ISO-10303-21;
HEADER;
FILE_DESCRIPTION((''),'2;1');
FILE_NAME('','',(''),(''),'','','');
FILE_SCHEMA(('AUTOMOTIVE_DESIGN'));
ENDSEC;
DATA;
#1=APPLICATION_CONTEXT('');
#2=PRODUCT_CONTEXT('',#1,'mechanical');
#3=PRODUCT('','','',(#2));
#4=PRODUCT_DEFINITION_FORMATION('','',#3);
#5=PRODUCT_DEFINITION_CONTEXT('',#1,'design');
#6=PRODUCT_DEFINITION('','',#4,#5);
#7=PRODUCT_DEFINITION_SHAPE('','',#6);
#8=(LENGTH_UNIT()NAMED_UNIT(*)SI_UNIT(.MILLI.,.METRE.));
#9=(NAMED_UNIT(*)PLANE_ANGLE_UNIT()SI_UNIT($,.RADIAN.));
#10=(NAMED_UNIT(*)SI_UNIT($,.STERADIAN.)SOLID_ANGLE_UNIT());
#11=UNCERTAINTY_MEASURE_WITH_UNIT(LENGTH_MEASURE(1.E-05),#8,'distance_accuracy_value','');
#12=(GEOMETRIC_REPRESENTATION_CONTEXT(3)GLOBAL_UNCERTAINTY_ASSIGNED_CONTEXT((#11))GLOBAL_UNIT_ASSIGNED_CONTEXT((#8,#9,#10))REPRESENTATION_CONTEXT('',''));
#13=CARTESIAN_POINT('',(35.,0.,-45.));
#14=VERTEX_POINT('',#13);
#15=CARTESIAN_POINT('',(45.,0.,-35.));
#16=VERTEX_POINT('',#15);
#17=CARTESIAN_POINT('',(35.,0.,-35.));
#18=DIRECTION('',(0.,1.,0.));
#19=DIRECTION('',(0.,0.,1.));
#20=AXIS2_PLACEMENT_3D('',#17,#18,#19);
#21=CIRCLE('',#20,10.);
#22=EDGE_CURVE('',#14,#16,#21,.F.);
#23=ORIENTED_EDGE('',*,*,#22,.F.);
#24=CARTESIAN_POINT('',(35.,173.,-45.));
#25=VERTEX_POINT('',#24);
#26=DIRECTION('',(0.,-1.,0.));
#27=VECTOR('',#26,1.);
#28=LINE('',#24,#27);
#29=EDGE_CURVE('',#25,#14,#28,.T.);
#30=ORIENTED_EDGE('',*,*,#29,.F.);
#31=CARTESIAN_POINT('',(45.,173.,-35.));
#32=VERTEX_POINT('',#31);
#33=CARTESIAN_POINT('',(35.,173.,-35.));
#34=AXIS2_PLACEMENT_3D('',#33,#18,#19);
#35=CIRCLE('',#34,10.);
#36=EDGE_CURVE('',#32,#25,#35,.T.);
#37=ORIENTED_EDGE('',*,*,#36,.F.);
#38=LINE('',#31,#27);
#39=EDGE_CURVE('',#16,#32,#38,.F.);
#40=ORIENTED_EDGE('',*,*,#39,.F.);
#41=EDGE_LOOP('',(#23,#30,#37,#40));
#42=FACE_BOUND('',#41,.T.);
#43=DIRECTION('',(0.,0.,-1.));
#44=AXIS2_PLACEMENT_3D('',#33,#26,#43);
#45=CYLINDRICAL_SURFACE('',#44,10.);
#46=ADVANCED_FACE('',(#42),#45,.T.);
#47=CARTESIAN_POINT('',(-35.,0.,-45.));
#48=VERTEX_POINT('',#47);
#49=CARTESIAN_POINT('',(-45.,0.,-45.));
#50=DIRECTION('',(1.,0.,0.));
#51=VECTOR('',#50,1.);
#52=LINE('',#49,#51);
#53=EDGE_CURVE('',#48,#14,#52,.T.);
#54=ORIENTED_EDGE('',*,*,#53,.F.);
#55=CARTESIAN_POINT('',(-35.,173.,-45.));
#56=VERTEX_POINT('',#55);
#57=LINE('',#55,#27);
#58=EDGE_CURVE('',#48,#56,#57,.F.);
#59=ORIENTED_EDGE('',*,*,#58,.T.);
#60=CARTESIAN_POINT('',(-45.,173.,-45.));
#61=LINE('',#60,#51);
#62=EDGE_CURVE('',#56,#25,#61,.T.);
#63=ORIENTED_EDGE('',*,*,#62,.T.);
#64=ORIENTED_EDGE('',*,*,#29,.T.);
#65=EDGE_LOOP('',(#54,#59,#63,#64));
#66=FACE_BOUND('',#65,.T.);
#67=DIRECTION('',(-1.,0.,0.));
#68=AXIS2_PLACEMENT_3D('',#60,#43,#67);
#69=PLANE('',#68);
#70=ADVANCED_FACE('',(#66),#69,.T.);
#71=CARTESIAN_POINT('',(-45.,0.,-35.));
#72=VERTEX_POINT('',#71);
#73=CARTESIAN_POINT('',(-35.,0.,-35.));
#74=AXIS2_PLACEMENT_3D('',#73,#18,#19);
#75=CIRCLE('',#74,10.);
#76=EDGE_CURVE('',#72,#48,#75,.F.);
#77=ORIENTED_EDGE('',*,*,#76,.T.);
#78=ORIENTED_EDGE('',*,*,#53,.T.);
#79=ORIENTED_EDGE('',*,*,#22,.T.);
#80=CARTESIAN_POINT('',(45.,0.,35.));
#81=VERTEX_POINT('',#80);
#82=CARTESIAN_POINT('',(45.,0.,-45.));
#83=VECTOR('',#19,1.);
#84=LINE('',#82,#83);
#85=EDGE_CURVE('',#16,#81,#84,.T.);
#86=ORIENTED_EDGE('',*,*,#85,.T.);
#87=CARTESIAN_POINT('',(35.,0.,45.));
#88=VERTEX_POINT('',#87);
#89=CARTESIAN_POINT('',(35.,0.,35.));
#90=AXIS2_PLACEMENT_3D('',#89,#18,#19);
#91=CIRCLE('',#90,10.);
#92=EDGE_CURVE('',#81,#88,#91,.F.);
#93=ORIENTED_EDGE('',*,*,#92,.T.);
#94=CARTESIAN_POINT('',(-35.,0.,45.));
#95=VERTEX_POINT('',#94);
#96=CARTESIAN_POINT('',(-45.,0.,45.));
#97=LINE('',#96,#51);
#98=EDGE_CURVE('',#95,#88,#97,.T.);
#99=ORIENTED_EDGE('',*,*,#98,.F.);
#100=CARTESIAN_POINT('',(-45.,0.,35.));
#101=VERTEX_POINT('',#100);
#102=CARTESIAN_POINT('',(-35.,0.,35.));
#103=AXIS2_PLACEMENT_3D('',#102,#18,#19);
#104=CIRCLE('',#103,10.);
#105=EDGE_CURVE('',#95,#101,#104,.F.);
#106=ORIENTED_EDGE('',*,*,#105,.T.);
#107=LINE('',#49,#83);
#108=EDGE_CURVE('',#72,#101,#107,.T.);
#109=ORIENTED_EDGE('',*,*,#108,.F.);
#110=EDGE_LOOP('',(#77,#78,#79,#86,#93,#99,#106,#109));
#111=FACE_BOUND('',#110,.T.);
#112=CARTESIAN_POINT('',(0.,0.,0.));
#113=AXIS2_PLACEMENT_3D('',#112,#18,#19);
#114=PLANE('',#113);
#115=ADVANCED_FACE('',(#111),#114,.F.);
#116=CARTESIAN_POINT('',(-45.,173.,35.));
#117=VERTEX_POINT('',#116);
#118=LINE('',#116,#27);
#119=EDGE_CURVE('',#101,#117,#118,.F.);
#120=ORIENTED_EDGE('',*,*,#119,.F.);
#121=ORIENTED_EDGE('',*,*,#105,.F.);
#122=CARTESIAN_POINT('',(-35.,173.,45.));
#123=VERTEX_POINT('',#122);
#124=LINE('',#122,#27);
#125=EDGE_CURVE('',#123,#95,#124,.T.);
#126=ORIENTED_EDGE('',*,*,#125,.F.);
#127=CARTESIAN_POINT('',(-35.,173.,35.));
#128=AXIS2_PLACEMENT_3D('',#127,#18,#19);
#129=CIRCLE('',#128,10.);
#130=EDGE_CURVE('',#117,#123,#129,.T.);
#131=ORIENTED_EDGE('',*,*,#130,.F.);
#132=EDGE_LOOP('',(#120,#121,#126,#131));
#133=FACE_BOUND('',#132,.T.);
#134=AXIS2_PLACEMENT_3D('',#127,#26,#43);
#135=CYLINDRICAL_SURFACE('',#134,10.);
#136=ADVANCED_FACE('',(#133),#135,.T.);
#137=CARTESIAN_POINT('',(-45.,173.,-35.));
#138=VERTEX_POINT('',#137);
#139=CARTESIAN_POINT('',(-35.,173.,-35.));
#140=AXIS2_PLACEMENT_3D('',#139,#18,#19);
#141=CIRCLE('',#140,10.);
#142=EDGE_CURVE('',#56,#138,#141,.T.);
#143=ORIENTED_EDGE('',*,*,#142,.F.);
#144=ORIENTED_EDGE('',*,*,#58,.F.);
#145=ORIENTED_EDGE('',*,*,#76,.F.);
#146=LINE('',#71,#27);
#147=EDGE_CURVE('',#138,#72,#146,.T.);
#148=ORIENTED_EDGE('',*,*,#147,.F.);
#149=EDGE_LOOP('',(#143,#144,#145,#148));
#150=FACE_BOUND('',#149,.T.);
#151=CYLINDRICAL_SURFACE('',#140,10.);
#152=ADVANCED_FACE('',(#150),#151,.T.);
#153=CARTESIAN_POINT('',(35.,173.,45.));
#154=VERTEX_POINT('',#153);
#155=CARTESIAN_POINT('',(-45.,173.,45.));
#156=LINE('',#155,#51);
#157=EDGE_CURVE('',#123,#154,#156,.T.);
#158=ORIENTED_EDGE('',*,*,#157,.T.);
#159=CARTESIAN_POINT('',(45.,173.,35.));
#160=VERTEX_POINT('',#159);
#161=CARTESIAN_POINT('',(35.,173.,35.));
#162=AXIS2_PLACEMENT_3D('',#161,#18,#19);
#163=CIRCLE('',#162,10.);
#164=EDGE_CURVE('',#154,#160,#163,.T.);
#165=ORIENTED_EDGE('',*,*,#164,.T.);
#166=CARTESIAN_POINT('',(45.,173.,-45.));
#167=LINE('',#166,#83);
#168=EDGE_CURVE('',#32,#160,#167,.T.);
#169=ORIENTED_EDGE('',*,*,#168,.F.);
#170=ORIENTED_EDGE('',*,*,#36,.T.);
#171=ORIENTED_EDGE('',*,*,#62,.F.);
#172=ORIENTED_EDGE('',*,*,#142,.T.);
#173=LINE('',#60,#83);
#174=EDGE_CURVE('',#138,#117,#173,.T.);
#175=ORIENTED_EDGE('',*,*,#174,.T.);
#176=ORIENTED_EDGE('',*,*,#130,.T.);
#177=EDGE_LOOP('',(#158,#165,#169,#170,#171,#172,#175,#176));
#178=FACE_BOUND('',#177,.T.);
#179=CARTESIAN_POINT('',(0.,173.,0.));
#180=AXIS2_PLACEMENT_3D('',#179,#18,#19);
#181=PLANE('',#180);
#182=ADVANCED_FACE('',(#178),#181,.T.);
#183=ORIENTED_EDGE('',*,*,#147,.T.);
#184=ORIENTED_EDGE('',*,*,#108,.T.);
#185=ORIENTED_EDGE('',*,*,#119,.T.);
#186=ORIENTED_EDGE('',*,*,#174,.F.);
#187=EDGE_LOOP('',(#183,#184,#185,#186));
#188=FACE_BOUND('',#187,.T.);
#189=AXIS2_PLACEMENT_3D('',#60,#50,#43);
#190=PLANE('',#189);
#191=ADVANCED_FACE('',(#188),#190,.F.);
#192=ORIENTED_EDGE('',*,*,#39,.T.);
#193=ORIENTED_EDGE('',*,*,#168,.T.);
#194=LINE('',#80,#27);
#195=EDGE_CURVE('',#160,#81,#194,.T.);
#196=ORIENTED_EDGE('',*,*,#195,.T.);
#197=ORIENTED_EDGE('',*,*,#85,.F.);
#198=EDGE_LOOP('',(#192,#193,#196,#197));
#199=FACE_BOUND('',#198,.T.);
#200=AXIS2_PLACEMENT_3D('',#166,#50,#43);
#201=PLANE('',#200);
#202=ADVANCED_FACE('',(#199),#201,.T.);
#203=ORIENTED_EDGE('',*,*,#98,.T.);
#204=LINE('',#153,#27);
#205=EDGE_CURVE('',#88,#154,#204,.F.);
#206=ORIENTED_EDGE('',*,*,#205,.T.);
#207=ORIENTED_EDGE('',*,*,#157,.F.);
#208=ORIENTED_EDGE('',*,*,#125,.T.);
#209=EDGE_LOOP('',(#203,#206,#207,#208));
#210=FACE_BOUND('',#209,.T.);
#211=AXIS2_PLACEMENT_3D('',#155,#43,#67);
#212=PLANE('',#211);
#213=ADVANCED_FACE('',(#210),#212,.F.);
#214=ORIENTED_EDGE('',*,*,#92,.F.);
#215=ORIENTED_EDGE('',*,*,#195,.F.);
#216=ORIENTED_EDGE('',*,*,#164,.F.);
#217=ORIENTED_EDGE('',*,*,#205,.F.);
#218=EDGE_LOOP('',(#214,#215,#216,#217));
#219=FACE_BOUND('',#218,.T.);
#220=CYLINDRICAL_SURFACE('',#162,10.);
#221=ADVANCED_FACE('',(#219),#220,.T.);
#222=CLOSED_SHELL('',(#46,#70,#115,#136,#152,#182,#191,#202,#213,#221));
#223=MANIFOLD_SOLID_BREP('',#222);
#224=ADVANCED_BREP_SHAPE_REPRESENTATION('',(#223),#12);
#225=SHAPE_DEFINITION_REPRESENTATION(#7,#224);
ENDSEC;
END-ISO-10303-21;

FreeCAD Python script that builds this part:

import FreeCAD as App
import Part
import Sketcher
from FreeCAD import Vector
Q = App.Units.Quantity


def edges_at(feature, points):
    """Names of the edges that pass closest to the given points."""
    edges = feature.Shape.Edges
    near = lambda p: min(range(len(edges)), key=lambda i: edges[i].distToShape(Part.Vertex(*p))[0])
    return sorted({f"Edge{near(p) + 1}" for p in points})

doc = App.newDocument("Part")
params = doc.addObject("Spreadsheet::Sheet", "Params")
for row, (alias, value) in enumerate([
    ("sketch1_width", "90 mm"),
    ("pad1_length", "173 mm"),
    ("fillet_radius", "10 mm"),
], start=1):
    params.set(f"A{row}", alias)
    params.set(f"B{row}", "=" + value)
    params.setAlias(f"B{row}", alias)

body = doc.addObject("PartDesign::Body", "Body")

sketch1 = body.newObject("Sketcher::SketchObject", "Sketch")
sketch1.AttachmentSupport = (doc.getObject("XZ_Plane"), [""])
sketch1.MapMode = "FlatFace"
sketch1.addGeometry(Part.LineSegment(Vector(-45, -45, 0), Vector(-45, 45, 0)), False)
sketch1.addGeometry(Part.LineSegment(Vector(-45, 45, 0), Vector(45, 45, 0)), False)
sketch1.addGeometry(Part.LineSegment(Vector(45, 45, 0), Vector(45, -45, 0)), False)
sketch1.addGeometry(Part.LineSegment(Vector(45, -45, 0), Vector(-45, -45, 0)), False)
sketch1.addConstraint(Sketcher.Constraint("Coincident", 0, 2, 1, 1))
sketch1.addConstraint(Sketcher.Constraint("Coincident", 1, 2, 2, 1))
sketch1.addConstraint(Sketcher.Constraint("Coincident", 2, 2, 3, 1))
sketch1.addConstraint(Sketcher.Constraint("Coincident", 3, 2, 0, 1))
sketch1.addConstraint(Sketcher.Constraint("Vertical", 0))
sketch1.addConstraint(Sketcher.Constraint("Horizontal", 1))
sketch1.addConstraint(Sketcher.Constraint("Vertical", 2))
sketch1.addConstraint(Sketcher.Constraint("Horizontal", 3))
sketch1.addConstraint(Sketcher.Constraint("Symmetric", 0, 2, 2, 2, -1, 1))
sketch1.addConstraint(Sketcher.Constraint("Equal", 3, 0))
sketch1.addConstraint(Sketcher.Constraint("DistanceX", 1, 1, 1, 2, Q("90 mm")))
sketch1.setExpression("Constraints[10]", "Params.sketch1_width")
pad1 = body.newObject("PartDesign::Pad", "Pad")
pad1.Profile = sketch1
pad1.setExpression("Length", "Params.pad1_length")
pad1.Reversed = True
doc.recompute()

fillet = body.newObject("PartDesign::Fillet", "Fillet")
fillet.Base = (pad1, edges_at(pad1, [
    (-45, 86.5, -45),
    (45, 86.5, -45),
    (45, 86.5, 45),
    (-45, 86.5, 45),
]))
fillet.setExpression("Radius", "Params.fillet_radius")

doc.recompute()
